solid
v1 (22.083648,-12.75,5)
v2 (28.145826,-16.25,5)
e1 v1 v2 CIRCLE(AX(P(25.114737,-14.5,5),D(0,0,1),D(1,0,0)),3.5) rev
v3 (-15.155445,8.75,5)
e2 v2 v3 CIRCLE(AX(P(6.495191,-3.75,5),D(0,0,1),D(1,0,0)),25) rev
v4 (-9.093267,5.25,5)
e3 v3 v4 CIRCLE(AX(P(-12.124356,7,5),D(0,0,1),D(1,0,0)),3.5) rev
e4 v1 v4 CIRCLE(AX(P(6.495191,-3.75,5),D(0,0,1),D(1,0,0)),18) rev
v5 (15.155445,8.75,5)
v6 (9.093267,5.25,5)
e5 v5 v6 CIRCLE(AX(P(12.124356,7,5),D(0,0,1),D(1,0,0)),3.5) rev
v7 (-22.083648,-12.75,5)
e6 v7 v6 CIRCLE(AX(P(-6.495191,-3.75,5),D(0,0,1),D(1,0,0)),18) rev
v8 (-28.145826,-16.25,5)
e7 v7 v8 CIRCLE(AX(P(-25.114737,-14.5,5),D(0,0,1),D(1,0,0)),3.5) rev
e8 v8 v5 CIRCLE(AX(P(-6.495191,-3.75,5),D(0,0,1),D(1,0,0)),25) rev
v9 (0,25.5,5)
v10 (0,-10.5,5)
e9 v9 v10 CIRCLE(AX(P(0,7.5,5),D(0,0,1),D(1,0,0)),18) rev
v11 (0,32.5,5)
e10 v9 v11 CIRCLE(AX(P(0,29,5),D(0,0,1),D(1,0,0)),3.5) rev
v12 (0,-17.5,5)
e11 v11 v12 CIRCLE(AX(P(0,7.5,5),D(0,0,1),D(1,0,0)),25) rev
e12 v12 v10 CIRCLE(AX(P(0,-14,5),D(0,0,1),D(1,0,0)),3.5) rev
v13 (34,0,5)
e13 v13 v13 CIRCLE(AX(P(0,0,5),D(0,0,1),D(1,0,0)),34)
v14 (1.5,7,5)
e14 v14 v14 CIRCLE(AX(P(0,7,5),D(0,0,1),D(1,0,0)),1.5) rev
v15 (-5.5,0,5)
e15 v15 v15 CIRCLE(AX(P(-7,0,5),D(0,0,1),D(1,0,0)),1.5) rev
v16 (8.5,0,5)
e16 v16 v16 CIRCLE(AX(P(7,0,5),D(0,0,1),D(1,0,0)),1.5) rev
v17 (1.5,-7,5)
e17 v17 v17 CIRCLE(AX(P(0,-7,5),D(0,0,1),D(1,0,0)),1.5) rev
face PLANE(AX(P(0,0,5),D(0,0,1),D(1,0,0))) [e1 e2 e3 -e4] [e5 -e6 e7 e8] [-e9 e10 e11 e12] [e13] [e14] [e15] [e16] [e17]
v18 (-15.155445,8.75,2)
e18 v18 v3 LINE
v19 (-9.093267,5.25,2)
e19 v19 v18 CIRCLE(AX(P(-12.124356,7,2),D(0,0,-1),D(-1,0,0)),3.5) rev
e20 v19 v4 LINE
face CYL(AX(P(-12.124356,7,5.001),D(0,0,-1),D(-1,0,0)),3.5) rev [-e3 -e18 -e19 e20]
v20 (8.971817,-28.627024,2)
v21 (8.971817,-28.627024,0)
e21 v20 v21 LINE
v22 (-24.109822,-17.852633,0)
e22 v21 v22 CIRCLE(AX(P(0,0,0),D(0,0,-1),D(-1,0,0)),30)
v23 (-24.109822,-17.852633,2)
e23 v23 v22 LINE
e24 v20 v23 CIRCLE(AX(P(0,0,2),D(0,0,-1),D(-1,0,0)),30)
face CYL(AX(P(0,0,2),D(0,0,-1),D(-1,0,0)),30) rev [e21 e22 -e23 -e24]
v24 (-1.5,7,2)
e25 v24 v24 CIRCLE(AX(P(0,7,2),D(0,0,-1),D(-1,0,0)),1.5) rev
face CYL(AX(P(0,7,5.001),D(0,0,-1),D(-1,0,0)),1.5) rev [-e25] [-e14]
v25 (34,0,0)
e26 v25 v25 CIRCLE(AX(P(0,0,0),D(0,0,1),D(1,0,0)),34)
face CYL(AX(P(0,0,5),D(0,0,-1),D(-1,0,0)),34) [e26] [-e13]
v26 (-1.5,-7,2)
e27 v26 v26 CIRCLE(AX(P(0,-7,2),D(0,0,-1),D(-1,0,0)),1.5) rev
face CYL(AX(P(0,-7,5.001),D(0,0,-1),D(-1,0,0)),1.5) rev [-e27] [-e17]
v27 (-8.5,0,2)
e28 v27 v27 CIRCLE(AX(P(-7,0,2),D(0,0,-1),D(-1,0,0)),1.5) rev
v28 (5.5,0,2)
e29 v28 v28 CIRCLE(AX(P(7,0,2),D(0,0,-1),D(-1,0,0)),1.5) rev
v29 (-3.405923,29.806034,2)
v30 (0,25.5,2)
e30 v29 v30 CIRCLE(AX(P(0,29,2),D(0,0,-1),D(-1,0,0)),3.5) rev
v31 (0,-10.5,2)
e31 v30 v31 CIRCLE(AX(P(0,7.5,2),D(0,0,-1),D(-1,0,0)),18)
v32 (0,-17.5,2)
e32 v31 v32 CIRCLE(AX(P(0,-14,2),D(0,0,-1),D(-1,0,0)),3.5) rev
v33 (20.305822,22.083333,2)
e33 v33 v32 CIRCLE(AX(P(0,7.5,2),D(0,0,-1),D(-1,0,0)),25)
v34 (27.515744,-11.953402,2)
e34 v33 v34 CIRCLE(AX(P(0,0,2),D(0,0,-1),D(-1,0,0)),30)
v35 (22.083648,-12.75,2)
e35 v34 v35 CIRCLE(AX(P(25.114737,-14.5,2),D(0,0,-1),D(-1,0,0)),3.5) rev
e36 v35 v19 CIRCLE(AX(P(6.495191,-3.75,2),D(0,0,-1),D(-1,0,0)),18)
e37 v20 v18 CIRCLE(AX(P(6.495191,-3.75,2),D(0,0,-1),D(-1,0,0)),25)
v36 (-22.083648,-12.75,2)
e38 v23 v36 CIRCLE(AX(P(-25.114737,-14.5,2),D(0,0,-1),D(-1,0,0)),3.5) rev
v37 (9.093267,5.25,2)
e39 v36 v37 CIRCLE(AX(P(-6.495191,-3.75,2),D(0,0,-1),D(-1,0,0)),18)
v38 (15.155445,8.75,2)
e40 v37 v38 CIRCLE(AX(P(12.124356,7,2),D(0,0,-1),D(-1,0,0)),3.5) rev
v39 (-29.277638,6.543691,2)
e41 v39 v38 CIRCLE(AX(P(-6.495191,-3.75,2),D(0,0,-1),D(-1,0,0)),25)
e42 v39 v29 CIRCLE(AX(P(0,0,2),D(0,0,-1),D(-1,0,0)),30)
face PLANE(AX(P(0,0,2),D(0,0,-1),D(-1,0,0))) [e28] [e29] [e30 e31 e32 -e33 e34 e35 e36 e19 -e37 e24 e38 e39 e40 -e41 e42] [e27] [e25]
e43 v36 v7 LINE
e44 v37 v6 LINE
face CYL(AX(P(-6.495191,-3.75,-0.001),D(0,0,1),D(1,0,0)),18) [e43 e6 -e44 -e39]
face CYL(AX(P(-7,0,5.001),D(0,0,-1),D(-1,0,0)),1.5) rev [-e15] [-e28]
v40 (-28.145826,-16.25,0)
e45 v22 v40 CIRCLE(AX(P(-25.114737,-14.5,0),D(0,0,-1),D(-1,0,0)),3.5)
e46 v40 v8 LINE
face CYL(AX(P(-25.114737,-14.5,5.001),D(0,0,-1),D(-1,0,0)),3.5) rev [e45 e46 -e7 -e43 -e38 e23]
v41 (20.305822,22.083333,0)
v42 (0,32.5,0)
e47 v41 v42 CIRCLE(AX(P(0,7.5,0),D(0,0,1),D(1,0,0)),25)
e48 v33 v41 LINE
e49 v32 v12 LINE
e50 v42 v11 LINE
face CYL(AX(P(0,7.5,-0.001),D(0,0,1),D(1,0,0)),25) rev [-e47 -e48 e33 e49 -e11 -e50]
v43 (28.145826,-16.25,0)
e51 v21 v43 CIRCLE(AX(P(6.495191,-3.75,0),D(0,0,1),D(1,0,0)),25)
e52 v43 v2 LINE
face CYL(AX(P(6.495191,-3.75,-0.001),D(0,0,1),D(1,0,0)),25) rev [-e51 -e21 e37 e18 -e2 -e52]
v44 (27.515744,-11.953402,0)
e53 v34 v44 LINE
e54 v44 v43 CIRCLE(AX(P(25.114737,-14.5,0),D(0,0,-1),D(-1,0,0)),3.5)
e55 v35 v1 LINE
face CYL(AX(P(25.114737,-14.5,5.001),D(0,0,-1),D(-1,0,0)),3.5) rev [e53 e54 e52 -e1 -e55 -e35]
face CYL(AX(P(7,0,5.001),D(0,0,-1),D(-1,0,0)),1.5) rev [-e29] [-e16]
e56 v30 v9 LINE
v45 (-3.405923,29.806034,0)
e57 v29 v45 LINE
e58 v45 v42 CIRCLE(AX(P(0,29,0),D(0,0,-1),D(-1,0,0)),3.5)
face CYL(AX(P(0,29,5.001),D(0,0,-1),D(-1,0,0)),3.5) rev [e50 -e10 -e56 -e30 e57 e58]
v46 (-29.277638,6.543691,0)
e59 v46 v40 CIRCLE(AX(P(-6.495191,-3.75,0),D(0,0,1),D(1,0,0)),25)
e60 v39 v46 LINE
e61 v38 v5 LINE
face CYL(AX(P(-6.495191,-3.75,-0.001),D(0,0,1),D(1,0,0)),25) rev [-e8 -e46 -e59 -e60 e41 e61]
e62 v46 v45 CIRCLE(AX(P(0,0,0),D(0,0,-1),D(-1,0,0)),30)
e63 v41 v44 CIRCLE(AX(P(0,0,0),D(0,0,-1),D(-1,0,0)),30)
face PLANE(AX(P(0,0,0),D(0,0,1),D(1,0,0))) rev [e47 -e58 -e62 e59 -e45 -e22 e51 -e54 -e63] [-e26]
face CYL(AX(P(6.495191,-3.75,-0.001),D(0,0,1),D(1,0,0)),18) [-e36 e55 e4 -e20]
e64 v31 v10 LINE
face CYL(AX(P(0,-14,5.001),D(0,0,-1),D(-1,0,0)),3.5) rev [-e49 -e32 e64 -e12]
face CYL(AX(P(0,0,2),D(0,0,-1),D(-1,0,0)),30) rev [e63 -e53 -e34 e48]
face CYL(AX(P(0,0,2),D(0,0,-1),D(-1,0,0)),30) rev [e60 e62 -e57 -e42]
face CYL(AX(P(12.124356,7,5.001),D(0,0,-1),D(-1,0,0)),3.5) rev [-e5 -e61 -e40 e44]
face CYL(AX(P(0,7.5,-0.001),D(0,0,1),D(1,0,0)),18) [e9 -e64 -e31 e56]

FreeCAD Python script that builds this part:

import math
import FreeCAD as App
import Part
import Sketcher
Q = App.Units.Quantity

doc = App.newDocument("Part")
params = doc.addObject("Spreadsheet::Sheet", "Params")
for row, (alias, value) in enumerate([
    ("sketch1_diameter", "68 mm"),
    ("pad1_length", "5 mm"),
    ("sketch2_radius", "18 mm"),
    ("sketch2_radius2", "25 mm"),
    ("sketch3_radius", "18 mm"),
    ("sketch3_radius2", "25 mm"),
    ("sketch4_radius", "18 mm"),
    ("sketch4_radius2", "25 mm"),
    ("sketch4_height", "9 mm"),
    ("sketch5_diameter", "3 mm"),
    ("sketch6_diameter", "3 mm"),
    ("sketch7_diameter", "3 mm"),
    ("sketch8_diameter", "3 mm"),
    ("sketch9_diameter", "7 mm"),
    ("sketch10_diameter", "7 mm"),
    ("sketch11_diameter", "7 mm"),
    ("pocket10_length", "5 mm"),
    ("sketch12_diameter", "7 mm"),
    ("sketch13_diameter", "7 mm"),
    ("sketch14_diameter", "7 mm"),
    ("sketch15_diameter", "60 mm"),
    ("pocket14_length", "2 mm"),
], start=1):
    params.set(f"A{row}", alias)
    params.set(f"B{row}", "=" + value)
    params.setAlias(f"B{row}", alias)

body = doc.addObject("PartDesign::Body", "Body")

# Sketch on XY plane
sketch1 = doc.addObject("Sketcher::SketchObject", "Sketch")
body.addObject(sketch1)
sketch1.AttachmentSupport = (doc.XY_Plane, [""])
sketch1.MapMode = "FlatFace"
sketch1.addGeometry(Part.Circle(App.Vector(0, 0, 0), App.Vector(0, 0, 1), 34), False)
sketch1.addConstraint([
    Sketcher.Constraint("Coincident", 0, 3, -1, 1),
    Sketcher.Constraint("Diameter", 0, Q("68 mm")),
])
sketch1.setExpression("Constraints[1]", "Params.sketch1_diameter")
pad1 = doc.addObject("PartDesign::Pad", "Pad")
body.addObject(pad1)
pad1.Profile = sketch1
pad1.setExpression("Length", "Params.pad1_length")

# Sketch on XY plane
sketch2 = doc.addObject("Sketcher::SketchObject", "Sketch001")
body.addObject(sketch2)
sketch2.AttachmentSupport = (doc.XY_Plane, [""])
sketch2.MapMode = "FlatFace"
sketch2.AttachmentOffset = App.Placement(App.Vector(0, 0, 5), App.Rotation())
sketch2.addGeometry([
    Part.ArcOfCircle(Part.Circle(App.Vector(0, 8, 0), App.Vector(0, 0, 1), 18), math.radians(-90), math.radians(90)),
    Part.LineSegment(App.Vector(0, -10, 0), App.Vector(0, -18, 0)),
    Part.ArcOfCircle(Part.Circle(App.Vector(0, 8, 0), App.Vector(0, 0, 1), 25), math.radians(-90), math.radians(90)),
    Part.LineSegment(App.Vector(0, 32, 0), App.Vector(0, 26, 0)),
], False)
sketch2.addConstraint([
    Sketcher.Constraint("Coincident", 0, 1, 1, 1),
    Sketcher.Constraint("Coincident", 1, 2, 2, 1),
    Sketcher.Constraint("Coincident", 2, 2, 3, 1),
    Sketcher.Constraint("Coincident", 3, 2, 0, 2),
    Sketcher.Constraint("Vertical", 1),
    Sketcher.Constraint("Vertical", 3),
    Sketcher.Constraint("Coincident", 2, 3, 0, 3),
    Sketcher.Constraint("PointOnObject", 0, 3, -2),
    Sketcher.Constraint("PointOnObject", 0, 1, -2),
    Sketcher.Constraint("PointOnObject", 2, 2, -2),
    Sketcher.Constraint("Radius", 0, Q("18 mm")),
    Sketcher.Constraint("Radius", 2, Q("25 mm")),
    Sketcher.Constraint("DistanceY", -1, 1, 0, 3, Q("7.5 mm")),
])
sketch2.setExpression("Constraints[10]", "Params.sketch2_radius")
sketch2.setExpression("Constraints[11]", "Params.sketch2_radius2")
pocket1 = doc.addObject("PartDesign::Pocket", "Pocket")
body.addObject(pocket1)
pocket1.Profile = sketch2
pocket1.Type = "UpToFirst"

# Sketch on XY plane
sketch3 = doc.addObject("Sketcher::SketchObject", "Sketch002")
body.addObject(sketch3)
sketch3.AttachmentSupport = (doc.XY_Plane, [""])
sketch3.MapMode = "FlatFace"
sketch3.AttachmentOffset = App.Placement(App.Vector(0, 0, 5), App.Rotation())
sketch3.addGeometry([
    Part.ArcOfCircle(Part.Circle(App.Vector(6, -4, 0), App.Vector(0, 0, 1), 18), math.radians(150), math.radians(330)),
    Part.LineSegment(App.Vector(-9, 5, 0), App.Vector(-15, 9, 0)),
    Part.ArcOfCircle(Part.Circle(App.Vector(6, -4, 0), App.Vector(0, 0, 1), 25), math.radians(150), math.radians(330)),
    Part.LineSegment(App.Vector(28, -16, 0), App.Vector(22, -13, 0)),
], False)
sketch3.addConstraint([
    Sketcher.Constraint("Coincident", 0, 1, 1, 1),
    Sketcher.Constraint("Coincident", 1, 2, 2, 1),
    Sketcher.Constraint("Coincident", 2, 2, 3, 1),
    Sketcher.Constraint("Coincident", 3, 2, 0, 2),
    Sketcher.Constraint("Coincident", 2, 3, 0, 3),
    Sketcher.Constraint("Parallel", 1, 3),
    Sketcher.Constraint("Radius", 0, Q("18 mm")),
    Sketcher.Constraint("Radius", 2, Q("25 mm")),
    Sketcher.Constraint("Angle", 1, Q("150 deg")),
    Sketcher.Constraint("DistanceY", 2, 3, 0, 1, Q("9 mm")),
    Sketcher.Constraint("DistanceY", 2, 2, 1, 2, Q("25 mm")),
    Sketcher.Constraint("DistanceY", 0, 3, -1, 1, Q("3.75 mm")),
    Sketcher.Constraint("DistanceX", -1, 1, 0, 3, Q("6.495191 mm")),
])
sketch3.setExpression("Constraints[6]", "Params.sketch3_radius")
sketch3.setExpression("Constraints[7]", "Params.sketch3_radius2")
pocket2 = doc.addObject("PartDesign::Pocket", "Pocket001")
body.addObject(pocket2)
pocket2.Profile = sketch3
pocket2.Type = "UpToFirst"

# Sketch on XY plane
sketch4 = doc.addObject("Sketcher::SketchObject", "Sketch003")
body.addObject(sketch4)
sketch4.AttachmentSupport = (doc.XY_Plane, [""])
sketch4.MapMode = "FlatFace"
sketch4.AttachmentOffset = App.Placement(App.Vector(0, 0, 5), App.Rotation())
sketch4.addGeometry([
    Part.ArcOfCircle(Part.Circle(App.Vector(-6, -4, 0), App.Vector(0, 0, 1), 18), math.radians(30), math.radians(210)),
    Part.LineSegment(App.Vector(9, 5, 0), App.Vector(15, 9, 0)),
    Part.ArcOfCircle(Part.Circle(App.Vector(-6, -4, 0), App.Vector(0, 0, 1), 25), math.radians(30), math.radians(210)),
    Part.LineSegment(App.Vector(-28, -16, 0), App.Vector(-22, -13, 0)),
], False)
sketch4.addConstraint([
    Sketcher.Constraint("Coincident", 0, 1, 1, 1),
    Sketcher.Constraint("Coincident", 1, 2, 2, 1),
    Sketcher.Constraint("Coincident", 2, 2, 3, 1),
    Sketcher.Constraint("Coincident", 3, 2, 0, 2),
    Sketcher.Constraint("Coincident", 2, 3, 0, 3),
    Sketcher.Constraint("Parallel", 1, 3),
    Sketcher.Constraint("Radius", 0, Q("18 mm")),
    Sketcher.Constraint("Radius", 2, Q("25 mm")),
    Sketcher.Constraint("Angle", 1, Q("30 deg")),
    Sketcher.Constraint("DistanceY", 0, 3, 0, 1, Q("9 mm")),
    Sketcher.Constraint("DistanceY", 2, 2, 1, 2, Q("25 mm")),
    Sketcher.Constraint("DistanceY", 0, 3, -1, 1, Q("3.75 mm")),
    Sketcher.Constraint("DistanceX", 0, 3, -1, 1, Q("6.495191 mm")),
])
sketch4.setExpression("Constraints[6]", "Params.sketch4_radius")
sketch4.setExpression("Constraints[7]", "Params.sketch4_radius2")
sketch4.setExpression("Constraints[9]", "Params.sketch4_height")
pocket3 = doc.addObject("PartDesign::Pocket", "Pocket002")
body.addObject(pocket3)
pocket3.Profile = sketch4
pocket3.Type = "UpToFirst"

# Sketch on XY plane
sketch5 = doc.addObject("Sketcher::SketchObject", "Sketch004")
body.addObject(sketch5)
sketch5.AttachmentSupport = (doc.XY_Plane, [""])
sketch5.MapMode = "FlatFace"
sketch5.addGeometry(Part.Circle(App.Vector(-7, 0, 0), App.Vector(0, 0, 1), 1.5), False)
sketch5.addConstraint([
    Sketcher.Constraint("PointOnObject", 0, 3, -1),
    Sketcher.Constraint("Diameter", 0, Q("3 mm")),
    Sketcher.Constraint("DistanceX", 0, 3, -1, 1, Q("7 mm")),
])
sketch5.setExpression("Constraints[1]", "Params.sketch5_diameter")
pocket4 = doc.addObject("PartDesign::Pocket", "Pocket003")
body.addObject(pocket4)
pocket4.Profile = sketch5
pocket4.Type = "UpToFirst"
pocket4.Reversed = True

# Sketch on XY plane
sketch6 = doc.addObject("Sketcher::SketchObject", "Sketch005")
body.addObject(sketch6)
sketch6.AttachmentSupport = (doc.XY_Plane, [""])
sketch6.MapMode = "FlatFace"
sketch6.addGeometry(Part.Circle(App.Vector(0, -7, 0), App.Vector(0, 0, 1), 1.5), False)
sketch6.addConstraint([
    Sketcher.Constraint("PointOnObject", 0, 3, -2),
    Sketcher.Constraint("Diameter", 0, Q("3 mm")),
    Sketcher.Constraint("DistanceY", 0, 3, -1, 1, Q("7 mm")),
])
sketch6.setExpression("Constraints[1]", "Params.sketch6_diameter")
pocket5 = doc.addObject("PartDesign::Pocket", "Pocket004")
body.addObject(pocket5)
pocket5.Profile = sketch6
pocket5.Type = "UpToFirst"
pocket5.Reversed = True

# Sketch on XY plane
sketch7 = doc.addObject("Sketcher::SketchObject", "Sketch006")
body.addObject(sketch7)
sketch7.AttachmentSupport = (doc.XY_Plane, [""])
sketch7.MapMode = "FlatFace"
sketch7.addGeometry(Part.Circle(App.Vector(7, 0, 0), App.Vector(0, 0, 1), 1.5), False)
sketch7.addConstraint([
    Sketcher.Constraint("PointOnObject", 0, 3, -1),
    Sketcher.Constraint("Diameter", 0, Q("3 mm")),
    Sketcher.Constraint("DistanceX", -1, 1, 0, 3, Q("7 mm")),
])
sketch7.setExpression("Constraints[1]", "Params.sketch7_diameter")
pocket6 = doc.addObject("PartDesign::Pocket", "Pocket005")
body.addObject(pocket6)
pocket6.Profile = sketch7
pocket6.Type = "UpToFirst"
pocket6.Reversed = True

# Sketch on XY plane
sketch8 = doc.addObject("Sketcher::SketchObject", "Sketch007")
body.addObject(sketch8)
sketch8.AttachmentSupport = (doc.XY_Plane, [""])
sketch8.MapMode = "FlatFace"
sketch8.addGeometry(Part.Circle(App.Vector(0, 7, 0), App.Vector(0, 0, 1), 1.5), False)
sketch8.addConstraint([
    Sketcher.Constraint("PointOnObject", 0, 3, -2),
    Sketcher.Constraint("Diameter", 0, Q("3 mm")),
    Sketcher.Constraint("DistanceY", -1, 1, 0, 3, Q("7 mm")),
])
sketch8.setExpression("Constraints[1]", "Params.sketch8_diameter")
pocket7 = doc.addObject("PartDesign::Pocket", "Pocket006")
body.addObject(pocket7)
pocket7.Profile = sketch8
pocket7.Type = "UpToFirst"
pocket7.Reversed = True

# Sketch on XY plane
sketch9 = doc.addObject("Sketcher::SketchObject", "Sketch008")
body.addObject(sketch9)
sketch9.AttachmentSupport = (doc.XY_Plane, [""])
sketch9.MapMode = "FlatFace"
sketch9.addGeometry(Part.Circle(App.Vector(0, 29, 0), App.Vector(0, 0, 1), 3.5), False)
sketch9.addConstraint([
    Sketcher.Constraint("PointOnObject", 0, 3, -2),
    Sketcher.Constraint("Diameter", 0, Q("7 mm")),
    Sketcher.Constraint("DistanceY", -1, 1, 0, 3, Q("29 mm")),
])
sketch9.setExpression("Constraints[1]", "Params.sketch9_diameter")
pocket8 = doc.addObject("PartDesign::Pocket", "Pocket007")
body.addObject(pocket8)
pocket8.Profile = sketch9
pocket8.Type = "UpToFirst"
pocket8.Reversed = True

# Sketch on XY plane
sketch10 = doc.addObject("Sketcher::SketchObject", "Sketch009")
body.addObject(sketch10)
sketch10.AttachmentSupport = (doc.XY_Plane, [""])
sketch10.MapMode = "FlatFace"
sketch10.addGeometry(Part.Circle(App.Vector(12.1, 7, 0), App.Vector(0, 0, 1), 3.5), False)
sketch10.addConstraint([
    Sketcher.Constraint("Diameter", 0, Q("7 mm")),
    Sketcher.Constraint("DistanceY", -1, 1, 0, 3, Q("7 mm")),
    Sketcher.Constraint("DistanceX", -1, 1, 0, 3, Q("12.124356 mm")),
])
sketch10.setExpression("Constraints[0]", "Params.sketch10_diameter")
pocket9 = doc.addObject("PartDesign::Pocket", "Pocket008")
body.addObject(pocket9)
pocket9.Profile = sketch10
pocket9.Type = "UpToFirst"
pocket9.Reversed = True

# Sketch on XY plane
sketch11 = doc.addObject("Sketcher::SketchObject", "Sketch010")
body.addObject(sketch11)
sketch11.AttachmentSupport = (doc.XY_Plane, [""])
sketch11.MapMode = "FlatFace"
sketch11.addGeometry(Part.Circle(App.Vector(-12.1, 7, 0), App.Vector(0, 0, 1), 3.5), False)
sketch11.addConstraint([
    Sketcher.Constraint("Diameter", 0, Q("7 mm")),
    Sketcher.Constraint("DistanceY", -1, 1, 0, 3, Q("7 mm")),
    Sketcher.Constraint("DistanceX", 0, 3, -1, 1, Q("12.124356 mm")),
])
sketch11.setExpression("Constraints[0]", "Params.sketch11_diameter")
pocket10 = doc.addObject("PartDesign::Pocket", "Pocket009")
body.addObject(pocket10)
pocket10.Profile = sketch11
pocket10.setExpression("Length", "Params.pocket10_length")
pocket10.Reversed = True

# Sketch on XY plane
sketch12 = doc.addObject("Sketcher::SketchObject", "Sketch011")
body.addObject(sketch12)
sketch12.AttachmentSupport = (doc.XY_Plane, [""])
sketch12.MapMode = "FlatFace"
sketch12.addGeometry(Part.Circle(App.Vector(-25.1, -14.5, 0), App.Vector(0, 0, 1), 3.5), False)
sketch12.addConstraint([
    Sketcher.Constraint("Diameter", 0, Q("7 mm")),
    Sketcher.Constraint("DistanceY", 0, 3, -1, 1, Q("14.5 mm")),
    Sketcher.Constraint("DistanceX", 0, 3, -1, 1, Q("25.114737 mm")),
])
sketch12.setExpression("Constraints[0]", "Params.sketch12_diameter")
pocket11 = doc.addObject("PartDesign::Pocket", "Pocket010")
body.addObject(pocket11)
pocket11.Profile = sketch12
pocket11.Type = "UpToFirst"
pocket11.Reversed = True

# Sketch on XY plane
sketch13 = doc.addObject("Sketcher::SketchObject", "Sketch012")
body.addObject(sketch13)
sketch13.AttachmentSupport = (doc.XY_Plane, [""])
sketch13.MapMode = "FlatFace"
sketch13.addGeometry(Part.Circle(App.Vector(25.1, -14.5, 0), App.Vector(0, 0, 1), 3.5), False)
sketch13.addConstraint([
    Sketcher.Constraint("Diameter", 0, Q("7 mm")),
    Sketcher.Constraint("DistanceY", 0, 3, -1, 1, Q("14.5 mm")),
    Sketcher.Constraint("DistanceX", -1, 1, 0, 3, Q("25.114737 mm")),
])
sketch13.setExpression("Constraints[0]", "Params.sketch13_diameter")
pocket12 = doc.addObject("PartDesign::Pocket", "Pocket011")
body.addObject(pocket12)
pocket12.Profile = sketch13
pocket12.Type = "UpToFirst"
pocket12.Reversed = True

# Sketch on XY plane
sketch14 = doc.addObject("Sketcher::SketchObject", "Sketch013")
body.addObject(sketch14)
sketch14.AttachmentSupport = (doc.XY_Plane, [""])
sketch14.MapMode = "FlatFace"
sketch14.addGeometry(Part.Circle(App.Vector(0, -14, 0), App.Vector(0, 0, 1), 3.5), False)
sketch14.addConstraint([
    Sketcher.Constraint("PointOnObject", 0, 3, -2),
    Sketcher.Constraint("Diameter", 0, Q("7 mm")),
    Sketcher.Constraint("DistanceY", 0, 3, -1, 1, Q("14 mm")),
])
sketch14.setExpression("Constraints[1]", "Params.sketch14_diameter")
pocket13 = doc.addObject("PartDesign::Pocket", "Pocket012")
body.addObject(pocket13)
pocket13.Profile = sketch14
pocket13.Type = "UpToFirst"
pocket13.Reversed = True

# Sketch on XY plane
sketch15 = doc.addObject("Sketcher::SketchObject", "Sketch014")
body.addObject(sketch15)
sketch15.AttachmentSupport = (doc.XY_Plane, [""])
sketch15.MapMode = "FlatFace"
sketch15.addGeometry(Part.Circle(App.Vector(0, 0, 0), App.Vector(0, 0, 1), 30), False)
sketch15.addConstraint([
    Sketcher.Constraint("Coincident", 0, 3, -1, 1),
    Sketcher.Constraint("Diameter", 0, Q("60 mm")),
])
sketch15.setExpression("Constraints[1]", "Params.sketch15_diameter")
pocket14 = doc.addObject("PartDesign::Pocket", "Pocket013")
body.addObject(pocket14)
pocket14.Profile = sketch15
pocket14.setExpression("Length", "Params.pocket14_length")
pocket14.Reversed = True

doc.recompute()
